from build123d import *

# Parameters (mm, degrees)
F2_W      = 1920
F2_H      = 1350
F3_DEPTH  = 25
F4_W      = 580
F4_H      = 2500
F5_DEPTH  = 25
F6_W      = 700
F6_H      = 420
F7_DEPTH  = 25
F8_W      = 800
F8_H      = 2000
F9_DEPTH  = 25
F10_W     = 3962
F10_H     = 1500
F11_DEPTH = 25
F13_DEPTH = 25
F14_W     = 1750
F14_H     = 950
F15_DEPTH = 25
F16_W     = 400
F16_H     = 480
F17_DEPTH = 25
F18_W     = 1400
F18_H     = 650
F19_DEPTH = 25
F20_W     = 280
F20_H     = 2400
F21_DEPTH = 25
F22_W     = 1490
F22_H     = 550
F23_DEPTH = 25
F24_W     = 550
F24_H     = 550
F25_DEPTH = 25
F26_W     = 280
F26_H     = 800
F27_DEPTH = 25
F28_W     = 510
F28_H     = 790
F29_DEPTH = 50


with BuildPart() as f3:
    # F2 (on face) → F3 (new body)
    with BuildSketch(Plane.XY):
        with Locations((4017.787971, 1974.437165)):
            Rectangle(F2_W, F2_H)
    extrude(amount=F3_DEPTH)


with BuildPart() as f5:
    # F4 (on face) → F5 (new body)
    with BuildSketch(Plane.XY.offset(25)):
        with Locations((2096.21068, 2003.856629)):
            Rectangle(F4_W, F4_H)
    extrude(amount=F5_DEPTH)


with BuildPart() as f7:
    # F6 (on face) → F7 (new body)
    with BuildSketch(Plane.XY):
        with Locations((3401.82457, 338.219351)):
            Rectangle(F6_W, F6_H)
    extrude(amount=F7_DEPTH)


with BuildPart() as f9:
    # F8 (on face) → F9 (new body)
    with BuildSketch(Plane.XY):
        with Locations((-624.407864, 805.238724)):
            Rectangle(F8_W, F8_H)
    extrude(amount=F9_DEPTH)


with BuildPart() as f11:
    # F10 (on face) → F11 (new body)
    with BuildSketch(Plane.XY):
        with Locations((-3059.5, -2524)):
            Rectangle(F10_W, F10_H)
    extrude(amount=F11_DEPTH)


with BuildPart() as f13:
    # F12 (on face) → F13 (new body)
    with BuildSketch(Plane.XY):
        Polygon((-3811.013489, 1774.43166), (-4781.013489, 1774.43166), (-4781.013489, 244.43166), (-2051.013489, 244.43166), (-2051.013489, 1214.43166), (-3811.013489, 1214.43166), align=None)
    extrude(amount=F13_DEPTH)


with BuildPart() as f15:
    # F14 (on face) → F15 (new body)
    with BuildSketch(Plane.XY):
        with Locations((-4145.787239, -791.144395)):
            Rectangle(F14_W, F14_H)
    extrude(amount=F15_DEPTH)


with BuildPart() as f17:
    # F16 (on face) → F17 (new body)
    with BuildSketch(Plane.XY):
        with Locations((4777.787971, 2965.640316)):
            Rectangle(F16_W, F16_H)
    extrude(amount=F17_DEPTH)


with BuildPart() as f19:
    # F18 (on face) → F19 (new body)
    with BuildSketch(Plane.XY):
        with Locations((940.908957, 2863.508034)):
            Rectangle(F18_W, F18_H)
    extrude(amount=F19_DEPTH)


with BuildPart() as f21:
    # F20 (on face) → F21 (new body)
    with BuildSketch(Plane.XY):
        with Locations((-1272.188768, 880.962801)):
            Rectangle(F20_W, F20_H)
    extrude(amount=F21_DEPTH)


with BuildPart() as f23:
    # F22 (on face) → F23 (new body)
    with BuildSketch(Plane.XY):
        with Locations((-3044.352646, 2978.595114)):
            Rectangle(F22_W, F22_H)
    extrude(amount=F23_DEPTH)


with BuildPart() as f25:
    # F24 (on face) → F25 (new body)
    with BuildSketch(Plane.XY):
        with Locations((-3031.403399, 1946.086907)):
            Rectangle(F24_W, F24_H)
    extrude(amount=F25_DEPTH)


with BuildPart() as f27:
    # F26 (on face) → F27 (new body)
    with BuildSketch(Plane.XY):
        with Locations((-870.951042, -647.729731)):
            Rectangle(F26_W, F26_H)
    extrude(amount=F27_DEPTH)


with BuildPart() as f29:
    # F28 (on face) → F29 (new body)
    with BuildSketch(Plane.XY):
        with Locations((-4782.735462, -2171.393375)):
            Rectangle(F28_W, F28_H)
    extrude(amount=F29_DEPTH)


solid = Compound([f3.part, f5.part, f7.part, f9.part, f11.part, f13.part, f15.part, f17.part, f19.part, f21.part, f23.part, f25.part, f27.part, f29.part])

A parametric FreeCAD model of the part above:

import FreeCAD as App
import Part
import Sketcher

V = App.Vector
Q = App.Units.Quantity

doc = App.newDocument("Part")
params = doc.addObject("Spreadsheet::Sheet", "Params")
for row, (alias, value) in enumerate([
    ("sketch1_width", "1920 mm"),
    ("sketch1_height", "1350 mm"),
    ("pad1_length", "25 mm"),
    ("sketch2_width", "580 mm"),
    ("sketch2_height", "2500 mm"),
    ("pad2_length", "25 mm"),
    ("sketch3_width", "700 mm"),
    ("sketch3_height", "420 mm"),
    ("pad3_length", "25 mm"),
    ("sketch4_width", "800 mm"),
    ("sketch4_height", "2000 mm"),
    ("pad4_length", "25 mm"),
    ("sketch5_width", "3962 mm"),
    ("sketch5_height", "1500 mm"),
    ("pad5_length", "25 mm"),
    ("sketch6_width", "970 mm"),
    ("sketch6_width2", "2730 mm"),
    ("sketch6_height", "1530 mm"),
    ("pad6_length", "25 mm"),
    ("sketch7_width", "1750 mm"),
    ("sketch7_height", "950 mm"),
    ("pad7_length", "25 mm"),
    ("sketch8_width", "400 mm"),
    ("sketch8_height", "480 mm"),
    ("pad8_length", "25 mm"),
    ("sketch9_width", "1400 mm"),
    ("sketch9_height", "650 mm"),
    ("pad9_length", "25 mm"),
    ("sketch10_width", "280 mm"),
    ("sketch10_height", "2400 mm"),
    ("pad10_length", "25 mm"),
    ("sketch11_width", "1490 mm"),
    ("sketch11_height", "550 mm"),
    ("pad11_length", "25 mm"),
    ("sketch12_width", "550 mm"),
    ("pad12_length", "25 mm"),
    ("sketch13_width", "280 mm"),
    ("sketch13_height", "800 mm"),
    ("pad13_length", "25 mm"),
    ("sketch14_width", "510 mm"),
    ("sketch14_height", "790 mm"),
    ("pad14_length", "50 mm"),
], start=1):
    params.set(f"A{row}", alias)
    params.set(f"B{row}", "=" + value)
    params.setAlias(f"B{row}", alias)

body = doc.addObject("PartDesign::Body", "Body")

# Sketch on XY plane
sketch1 = doc.addObject("Sketcher::SketchObject", "Sketch")
body.addObject(sketch1)
sketch1.AttachmentSupport = (doc.XY_Plane, [""])
sketch1.MapMode = "FlatFace"
sketch1.addGeometry([
    Part.LineSegment(V(3058, 2649, 0), V(3058, 1299, 0)),
    Part.LineSegment(V(3058, 1299, 0), V(4978, 1299, 0)),
    Part.LineSegment(V(4978, 1299, 0), V(4978, 2649, 0)),
    Part.LineSegment(V(4978, 2649, 0), V(3058, 2649, 0)),
], False)
sketch1.addConstraint([
    Sketcher.Constraint("Coincident", 0, 2, 1, 1),
    Sketcher.Constraint("Coincident", 1, 2, 2, 1),
    Sketcher.Constraint("Coincident", 2, 2, 3, 1),
    Sketcher.Constraint("Coincident", 3, 2, 0, 1),
    Sketcher.Constraint("Vertical", 0),
    Sketcher.Constraint("Horizontal", 1),
    Sketcher.Constraint("Vertical", 2),
    Sketcher.Constraint("Horizontal", 3),
    Sketcher.Constraint("DistanceX", 1, 1, 1, 2, Q("1920 mm")),
    Sketcher.Constraint("DistanceY", 0, 2, 0, 1, Q("1350 mm")),
    Sketcher.Constraint("DistanceX", -1, 1, 0, 2, Q("3057.787971 mm")),
    Sketcher.Constraint("DistanceY", -1, 1, 0, 2, Q("1299.437165 mm")),
])
sketch1.setExpression("Constraints[8]", "Params.sketch1_width")
sketch1.setExpression("Constraints[9]", "Params.sketch1_height")
pad1 = doc.addObject("PartDesign::Pad", "Pad")
body.addObject(pad1)
pad1.Profile = sketch1
pad1.setExpression("Length", "Params.pad1_length")
body2 = doc.addObject("PartDesign::Body", "Body001")

# Sketch on XY plane
sketch2 = doc.addObject("Sketcher::SketchObject", "Sketch001")
body2.addObject(sketch2)
sketch2.AttachmentSupport = (doc.getObject("XY_Plane001"), [""])
sketch2.MapMode = "FlatFace"
sketch2.AttachmentOffset = App.Placement(V(0, 0, 25), App.Rotation())
sketch2.addGeometry([
    Part.LineSegment(V(1806, 3254, 0), V(1806, 754, 0)),
    Part.LineSegment(V(1806, 754, 0), V(2386, 754, 0)),
    Part.LineSegment(V(2386, 754, 0), V(2386, 3254, 0)),
    Part.LineSegment(V(2386, 3254, 0), V(1806, 3254, 0)),
], False)
sketch2.addConstraint([
    Sketcher.Constraint("Coincident", 0, 2, 1, 1),
    Sketcher.Constraint("Coincident", 1, 2, 2, 1),
    Sketcher.Constraint("Coincident", 2, 2, 3, 1),
    Sketcher.Constraint("Coincident", 3, 2, 0, 1),
    Sketcher.Constraint("Vertical", 0),
    Sketcher.Constraint("Horizontal", 1),
    Sketcher.Constraint("Vertical", 2),
    Sketcher.Constraint("Horizontal", 3),
    Sketcher.Constraint("DistanceX", 1, 1, 1, 2, Q("580 mm")),
    Sketcher.Constraint("DistanceY", 0, 2, 0, 1, Q("2500 mm")),
    Sketcher.Constraint("DistanceX", -1, 1, 0, 2, Q("1806.21068 mm")),
    Sketcher.Constraint("DistanceY", -1, 1, 0, 2, Q("753.856629 mm")),
])
sketch2.setExpression("Constraints[8]", "Params.sketch2_width")
sketch2.setExpression("Constraints[9]", "Params.sketch2_height")
pad2 = doc.addObject("PartDesign::Pad", "Pad001")
body2.addObject(pad2)
pad2.Profile = sketch2
pad2.setExpression("Length", "Params.pad2_length")
body3 = doc.addObject("PartDesign::Body", "Body002")

# Sketch on XY plane
sketch3 = doc.addObject("Sketcher::SketchObject", "Sketch002")
body3.addObject(sketch3)
sketch3.AttachmentSupport = (doc.getObject("XY_Plane002"), [""])
sketch3.MapMode = "FlatFace"
sketch3.addGeometry([
    Part.LineSegment(V(3052, 548, 0), V(3052, 128, 0)),
    Part.LineSegment(V(3052, 128, 0), V(3752, 128, 0)),
    Part.LineSegment(V(3752, 128, 0), V(3752, 548, 0)),
    Part.LineSegment(V(3752, 548, 0), V(3052, 548, 0)),
], False)
sketch3.addConstraint([
    Sketcher.Constraint("Coincident", 0, 2, 1, 1),
    Sketcher.Constraint("Coincident", 1, 2, 2, 1),
    Sketcher.Constraint("Coincident", 2, 2, 3, 1),
    Sketcher.Constraint("Coincident", 3, 2, 0, 1),
    Sketcher.Constraint("Vertical", 0),
    Sketcher.Constraint("Horizontal", 1),
    Sketcher.Constraint("Vertical", 2),
    Sketcher.Constraint("Horizontal", 3),
    Sketcher.Constraint("DistanceX", 1, 1, 1, 2, Q("700 mm")),
    Sketcher.Constraint("DistanceY", 0, 2, 0, 1, Q("420 mm")),
    Sketcher.Constraint("DistanceX", -1, 1, 0, 2, Q("3051.82457 mm")),
    Sketcher.Constraint("DistanceY", -1, 1, 0, 2, Q("128.219351 mm")),
])
sketch3.setExpression("Constraints[8]", "Params.sketch3_width")
sketch3.setExpression("Constraints[9]", "Params.sketch3_height")
pad3 = doc.addObject("PartDesign::Pad", "Pad002")
body3.addObject(pad3)
pad3.Profile = sketch3
pad3.setExpression("Length", "Params.pad3_length")
body4 = doc.addObject("PartDesign::Body", "Body003")

# Sketch on XY plane
sketch4 = doc.addObject("Sketcher::SketchObject", "Sketch003")
body4.addObject(sketch4)
sketch4.AttachmentSupport = (doc.getObject("XY_Plane003"), [""])
sketch4.MapMode = "FlatFace"
sketch4.addGeometry([
    Part.LineSegment(V(-1024, 1805, 0), V(-1024, -195, 0)),
    Part.LineSegment(V(-1024, -195, 0), V(-224, -195, 0)),
    Part.LineSegment(V(-224, -195, 0), V(-224, 1805, 0)),
    Part.LineSegment(V(-224, 1805, 0), V(-1024, 1805, 0)),
], False)
sketch4.addConstraint([
    Sketcher.Constraint("Coincident", 0, 2, 1, 1),
    Sketcher.Constraint("Coincident", 1, 2, 2, 1),
    Sketcher.Constraint("Coincident", 2, 2, 3, 1),
    Sketcher.Constraint("Coincident", 3, 2, 0, 1),
    Sketcher.Constraint("Vertical", 0),
    Sketcher.Constraint("Horizontal", 1),
    Sketcher.Constraint("Vertical", 2),
    Sketcher.Constraint("Horizontal", 3),
    Sketcher.Constraint("DistanceX", 1, 1, 1, 2, Q("800 mm")),
    Sketcher.Constraint("DistanceY", 0, 2, 0, 1, Q("2000 mm")),
    Sketcher.Constraint("DistanceX", 0, 2, -1, 1, Q("1024.407864 mm")),
    Sketcher.Constraint("DistanceY", 0, 2, -1, 1, Q("194.761276 mm")),
])
sketch4.setExpression("Constraints[8]", "Params.sketch4_width")
sketch4.setExpression("Constraints[9]", "Params.sketch4_height")
pad4 = doc.addObject("PartDesign::Pad", "Pad003")
body4.addObject(pad4)
pad4.Profile = sketch4
pad4.setExpression("Length", "Params.pad4_length")
body5 = doc.addObject("PartDesign::Body", "Body004")

# Sketch on XY plane
sketch5 = doc.addObject("Sketcher::SketchObject", "Sketch004")
body5.addObject(sketch5)
sketch5.AttachmentSupport = (doc.getObject("XY_Plane004"), [""])
sketch5.MapMode = "FlatFace"
sketch5.addGeometry([
    Part.LineSegment(V(-5040, -1774, 0), V(-5040, -3274, 0)),
    Part.LineSegment(V(-5040, -3274, 0), V(-1078, -3274, 0)),
    Part.LineSegment(V(-1078, -3274, 0), V(-1078, -1774, 0)),
    Part.LineSegment(V(-1078, -1774, 0), V(-5040, -1774, 0)),
], False)
sketch5.addConstraint([
    Sketcher.Constraint("Coincident", 0, 2, 1, 1),
    Sketcher.Constraint("Coincident", 1, 2, 2, 1),
    Sketcher.Constraint("Coincident", 2, 2, 3, 1),
    Sketcher.Constraint("Coincident", 3, 2, 0, 1),
    Sketcher.Constraint("Vertical", 0),
    Sketcher.Constraint("Horizontal", 1),
    Sketcher.Constraint("Vertical", 2),
    Sketcher.Constraint("Horizontal", 3),
    Sketcher.Constraint("DistanceX", 1, 1, 1, 2, Q("3962 mm")),
    Sketcher.Constraint("DistanceY", 0, 2, 0, 1, Q("1500 mm")),
    Sketcher.Constraint("DistanceY", 0, 2, -1, 1, Q("3274 mm")),
    Sketcher.Constraint("DistanceX", 0, 2, -1, 1, Q("5040.5 mm")),
])
sketch5.setExpression("Constraints[8]", "Params.sketch5_width")
sketch5.setExpression("Constraints[9]", "Params.sketch5_height")
pad5 = doc.addObject("PartDesign::Pad", "Pad004")
body5.addObject(pad5)
pad5.Profile = sketch5
pad5.setExpression("Length", "Params.pad5_length")
body6 = doc.addObject("PartDesign::Body", "Body005")

# Sketch on XY plane
sketch6 = doc.addObject("Sketcher::SketchObject", "Sketch005")
body6.addObject(sketch6)
sketch6.AttachmentSupport = (doc.getObject("XY_Plane005"), [""])
sketch6.MapMode = "FlatFace"
sketch6.addGeometry([
    Part.LineSegment(V(-3811, 1774, 0), V(-4781, 1774, 0)),  # 0
    Part.LineSegment(V(-4781, 1774, 0), V(-4781, 244, 0)),  # 1
    Part.LineSegment(V(-4781, 244, 0), V(-2051, 244, 0)),  # 2
    Part.LineSegment(V(-2051, 244, 0), V(-2051, 1214, 0)),  # 3
    Part.LineSegment(V(-2051, 1214, 0), V(-3811, 1214, 0)),  # 4
    Part.LineSegment(V(-3811, 1214, 0), V(-3811, 1774, 0)),  # 5
], False)
sketch6.addConstraint([
    Sketcher.Constraint("Coincident", 0, 2, 1, 1),
    Sketcher.Constraint("Coincident", 1, 2, 2, 1),
    Sketcher.Constraint("Coincident", 2, 2, 3, 1),
    Sketcher.Constraint("Coincident", 3, 2, 4, 1),
    Sketcher.Constraint("Coincident", 4, 2, 5, 1),
    Sketcher.Constraint("Coincident", 5, 2, 0, 1),
    Sketcher.Constraint("Horizontal", 0),
    Sketcher.Constraint("Vertical", 1),
    Sketcher.Constraint("Horizontal", 2),
    Sketcher.Constraint("Vertical", 3),
    Sketcher.Constraint("Horizontal", 4),
    Sketcher.Constraint("Vertical", 5),
    Sketcher.Constraint("Equal", 0, 3),
    Sketcher.Constraint("DistanceX", 0, 2, 0, 1, Q("970 mm")),
    Sketcher.Constraint("DistanceX", 2, 1, 2, 2, Q("2730 mm")),
    Sketcher.Constraint("DistanceY", 1, 2, 1, 1, Q("1530 mm")),
    Sketcher.Constraint("DistanceX", 0, 2, -1, 1, Q("4781.013489 mm")),
    Sketcher.Constraint("DistanceY", -1, 1, 0, 2, Q("1774.43166 mm")),
])
sketch6.setExpression("Constraints[13]", "Params.sketch6_width")
sketch6.setExpression("Constraints[14]", "Params.sketch6_width2")
sketch6.setExpression("Constraints[15]", "Params.sketch6_height")
pad6 = doc.addObject("PartDesign::Pad", "Pad005")
body6.addObject(pad6)
pad6.Profile = sketch6
pad6.setExpression("Length", "Params.pad6_length")
body7 = doc.addObject("PartDesign::Body", "Body006")

# Sketch on XY plane
sketch7 = doc.addObject("Sketcher::SketchObject", "Sketch006")
body7.addObject(sketch7)
sketch7.AttachmentSupport = (doc.getObject("XY_Plane006"), [""])
sketch7.MapMode = "FlatFace"
sketch7.addGeometry([
    Part.LineSegment(V(-5021, -316, 0), V(-5021, -1266, 0)),
    Part.LineSegment(V(-5021, -1266, 0), V(-3271, -1266, 0)),
    Part.LineSegment(V(-3271, -1266, 0), V(-3271, -316, 0)),
    Part.LineSegment(V(-3271, -316, 0), V(-5021, -316, 0)),
], False)
sketch7.addConstraint([
    Sketcher.Constraint("Coincident", 0, 2, 1, 1),
    Sketcher.Constraint("Coincident", 1, 2, 2, 1),
    Sketcher.Constraint("Coincident", 2, 2, 3, 1),
    Sketcher.Constraint("Coincident", 3, 2, 0, 1),
    Sketcher.Constraint("Vertical", 0),
    Sketcher.Constraint("Horizontal", 1),
    Sketcher.Constraint("Vertical", 2),
    Sketcher.Constraint("Horizontal", 3),
    Sketcher.Constraint("DistanceX", 1, 1, 1, 2, Q("1750 mm")),
    Sketcher.Constraint("DistanceY", 0, 2, 0, 1, Q("950 mm")),
    Sketcher.Constraint("DistanceX", 0, 2, -1, 1, Q("5020.787239 mm")),
    Sketcher.Constraint("DistanceY", 0, 2, -1, 1, Q("1266.144395 mm")),
])
sketch7.setExpression("Constraints[8]", "Params.sketch7_width")
sketch7.setExpression("Constraints[9]", "Params.sketch7_height")
pad7 = doc.addObject("PartDesign::Pad", "Pad006")
body7.addObject(pad7)
pad7.Profile = sketch7
pad7.setExpression("Length", "Params.pad7_length")
body8 = doc.addObject("PartDesign::Body", "Body007")

# Sketch on XY plane
sketch8 = doc.addObject("Sketcher::SketchObject", "Sketch007")
body8.addObject(sketch8)
sketch8.AttachmentSupport = (doc.getObject("XY_Plane007"), [""])
sketch8.MapMode = "FlatFace"
sketch8.addGeometry([
    Part.LineSegment(V(4578, 3206, 0), V(4578, 2726, 0)),
    Part.LineSegment(V(4578, 2726, 0), V(4978, 2726, 0)),
    Part.LineSegment(V(4978, 2726, 0), V(4978, 3206, 0)),
    Part.LineSegment(V(4978, 3206, 0), V(4578, 3206, 0)),
], False)
sketch8.addConstraint([
    Sketcher.Constraint("Coincident", 0, 2, 1, 1),
    Sketcher.Constraint("Coincident", 1, 2, 2, 1),
    Sketcher.Constraint("Coincident", 2, 2, 3, 1),
    Sketcher.Constraint("Coincident", 3, 2, 0, 1),
    Sketcher.Constraint("Vertical", 0),
    Sketcher.Constraint("Horizontal", 1),
    Sketcher.Constraint("Vertical", 2),
    Sketcher.Constraint("Horizontal", 3),
    Sketcher.Constraint("DistanceX", 1, 1, 1, 2, Q("400 mm")),
    Sketcher.Constraint("DistanceY", 0, 2, 0, 1, Q("480 mm")),
    Sketcher.Constraint("DistanceX", -1, 1, 0, 2, Q("4577.787971 mm")),
    Sketcher.Constraint("DistanceY", -1, 1, 0, 2, Q("2725.640316 mm")),
])
sketch8.setExpression("Constraints[8]", "Params.sketch8_width")
sketch8.setExpression("Constraints[9]", "Params.sketch8_height")
pad8 = doc.addObject("PartDesign::Pad", "Pad007")
body8.addObject(pad8)
pad8.Profile = sketch8
pad8.setExpression("Length", "Params.pad8_length")
body9 = doc.addObject("PartDesign::Body", "Body008")

# Sketch on XY plane
sketch9 = doc.addObject("Sketcher::SketchObject", "Sketch008")
body9.addObject(sketch9)
sketch9.AttachmentSupport = (doc.getObject("XY_Plane008"), [""])
sketch9.MapMode = "FlatFace"
sketch9.addGeometry([
    Part.LineSegment(V(241, 3189, 0), V(241, 2539, 0)),
    Part.LineSegment(V(241, 2539, 0), V(1641, 2539, 0)),
    Part.LineSegment(V(1641, 2539, 0), V(1641, 3189, 0)),
    Part.LineSegment(V(1641, 3189, 0), V(241, 3189, 0)),
], False)
sketch9.addConstraint([
    Sketcher.Constraint("Coincident", 0, 2, 1, 1),
    Sketcher.Constraint("Coincident", 1, 2, 2, 1),
    Sketcher.Constraint("Coincident", 2, 2, 3, 1),
    Sketcher.Constraint("Coincident", 3, 2, 0, 1),
    Sketcher.Constraint("Vertical", 0),
    Sketcher.Constraint("Horizontal", 1),
    Sketcher.Constraint("Vertical", 2),
    Sketcher.Constraint("Horizontal", 3),
    Sketcher.Constraint("DistanceX", 1, 1, 1, 2, Q("1400 mm")),
    Sketcher.Constraint("DistanceY", 0, 2, 0, 1, Q("650 mm")),
    Sketcher.Constraint("DistanceX", -1, 1, 0, 2, Q("240.908957 mm")),
    Sketcher.Constraint("DistanceY", -1, 1, 0, 2, Q("2538.508034 mm")),
])
sketch9.setExpression("Constraints[8]", "Params.sketch9_width")
sketch9.setExpression("Constraints[9]", "Params.sketch9_height")
pad9 = doc.addObject("PartDesign::Pad", "Pad008")
body9.addObject(pad9)
pad9.Profile = sketch9
pad9.setExpression("Length", "Params.pad9_length")
body10 = doc.addObject("PartDesign::Body", "Body009")

# Sketch on XY plane
sketch10 = doc.addObject("Sketcher::SketchObject", "Sketch009")
body10.addObject(sketch10)
sketch10.AttachmentSupport = (doc.getObject("XY_Plane009"), [""])
sketch10.MapMode = "FlatFace"
sketch10.addGeometry([
    Part.LineSegment(V(-1412, 2081, 0), V(-1412, -319, 0)),
    Part.LineSegment(V(-1412, -319, 0), V(-1132, -319, 0)),
    Part.LineSegment(V(-1132, -319, 0), V(-1132, 2081, 0)),
    Part.LineSegment(V(-1132, 2081, 0), V(-1412, 2081, 0)),
], False)
sketch10.addConstraint([
    Sketcher.Constraint("Coincident", 0, 2, 1, 1),
    Sketcher.Constraint("Coincident", 1, 2, 2, 1),
    Sketcher.Constraint("Coincident", 2, 2, 3, 1),
    Sketcher.Constraint("Coincident", 3, 2, 0, 1),
    Sketcher.Constraint("Vertical", 0),
    Sketcher.Constraint("Horizontal", 1),
    Sketcher.Constraint("Vertical", 2),
    Sketcher.Constraint("Horizontal", 3),
    Sketcher.Constraint("DistanceX", 1, 1, 1, 2, Q("280 mm")),
    Sketcher.Constraint("DistanceY", 0, 2, 0, 1, Q("2400 mm")),
    Sketcher.Constraint("DistanceY", 0, 2, -1, 1, Q("319.037199 mm")),
    Sketcher.Constraint("DistanceX", 0, 2, -1, 1, Q("1412.188768 mm")),
])
sketch10.setExpression("Constraints[8]", "Params.sketch10_width")
sketch10.setExpression("Constraints[9]", "Params.sketch10_height")
pad10 = doc.addObject("PartDesign::Pad", "Pad009")
body10.addObject(pad10)
pad10.Profile = sketch10
pad10.setExpression("Length", "Params.pad10_length")
body11 = doc.addObject("PartDesign::Body", "Body010")

# Sketch on XY plane
sketch11 = doc.addObject("Sketcher::SketchObject", "Sketch010")
body11.addObject(sketch11)
sketch11.AttachmentSupport = (doc.getObject("XY_Plane010"), [""])
sketch11.MapMode = "FlatFace"
sketch11.addGeometry([
    Part.LineSegment(V(-3789, 3254, 0), V(-3789, 2704, 0)),
    Part.LineSegment(V(-3789, 2704, 0), V(-2299, 2704, 0)),
    Part.LineSegment(V(-2299, 2704, 0), V(-2299, 3254, 0)),
    Part.LineSegment(V(-2299, 3254, 0), V(-3789, 3254, 0)),
], False)
sketch11.addConstraint([
    Sketcher.Constraint("Coincident", 0, 2, 1, 1),
    Sketcher.Constraint("Coincident", 1, 2, 2, 1),
    Sketcher.Constraint("Coincident", 2, 2, 3, 1),
    Sketcher.Constraint("Coincident", 3, 2, 0, 1),
    Sketcher.Constraint("Vertical", 0),
    Sketcher.Constraint("Horizontal", 1),
    Sketcher.Constraint("Vertical", 2),
    Sketcher.Constraint("Horizontal", 3),
    Sketcher.Constraint("DistanceX", 1, 1, 1, 2, Q("1490 mm")),
    Sketcher.Constraint("DistanceY", 0, 2, 0, 1, Q("550 mm")),
    Sketcher.Constraint("DistanceX", 0, 2, -1, 1, Q("3789.352646 mm")),
    Sketcher.Constraint("DistanceY", -1, 1, 0, 2, Q("2703.595114 mm")),
])
sketch11.setExpression("Constraints[8]", "Params.sketch11_width")
sketch11.setExpression("Constraints[9]", "Params.sketch11_height")
pad11 = doc.addObject("PartDesign::Pad", "Pad010")
body11.addObject(pad11)
pad11.Profile = sketch11
pad11.setExpression("Length", "Params.pad11_length")
body12 = doc.addObject("PartDesign::Body", "Body011")

# Sketch on XY plane
sketch12 = doc.addObject("Sketcher::SketchObject", "Sketch011")
body12.addObject(sketch12)
sketch12.AttachmentSupport = (doc.getObject("XY_Plane011"), [""])
sketch12.MapMode = "FlatFace"
sketch12.addGeometry([
    Part.LineSegment(V(-3306, 2221, 0), V(-3306, 1671, 0)),
    Part.LineSegment(V(-3306, 1671, 0), V(-2756, 1671, 0)),
    Part.LineSegment(V(-2756, 1671, 0), V(-2756, 2221, 0)),
    Part.LineSegment(V(-2756, 2221, 0), V(-3306, 2221, 0)),
], False)
sketch12.addConstraint([
    Sketcher.Constraint("Coincident", 0, 2, 1, 1),
    Sketcher.Constraint("Coincident", 1, 2, 2, 1),
    Sketcher.Constraint("Coincident", 2, 2, 3, 1),
    Sketcher.Constraint("Coincident", 3, 2, 0, 1),
    Sketcher.Constraint("Vertical", 0),
    Sketcher.Constraint("Horizontal", 1),
    Sketcher.Constraint("Vertical", 2),
    Sketcher.Constraint("Horizontal", 3),
    Sketcher.Constraint("Equal", 3, 0),
    Sketcher.Constraint("DistanceX", 1, 1, 1, 2, Q("550 mm")),
    Sketcher.Constraint("DistanceX", 0, 2, -1, 1, Q("3306.403399 mm")),
    Sketcher.Constraint("DistanceY", -1, 1, 0, 2, Q("1671.086907 mm")),
])
sketch12.setExpression("Constraints[9]", "Params.sketch12_width")
pad12 = doc.addObject("PartDesign::Pad", "Pad011")
body12.addObject(pad12)
pad12.Profile = sketch12
pad12.setExpression("Length", "Params.pad12_length")
body13 = doc.addObject("PartDesign::Body", "Body012")

# Sketch on XY plane
sketch13 = doc.addObject("Sketcher::SketchObject", "Sketch012")
body13.addObject(sketch13)
sketch13.AttachmentSupport = (doc.getObject("XY_Plane012"), [""])
sketch13.MapMode = "FlatFace"
sketch13.addGeometry([
    Part.LineSegment(V(-1011, -248, 0), V(-1011, -1048, 0)),
    Part.LineSegment(V(-1011, -1048, 0), V(-731, -1048, 0)),
    Part.LineSegment(V(-731, -1048, 0), V(-731, -248, 0)),
    Part.LineSegment(V(-731, -248, 0), V(-1011, -248, 0)),
], False)
sketch13.addConstraint([
    Sketcher.Constraint("Coincident", 0, 2, 1, 1),
    Sketcher.Constraint("Coincident", 1, 2, 2, 1),
    Sketcher.Constraint("Coincident", 2, 2, 3, 1),
    Sketcher.Constraint("Coincident", 3, 2, 0, 1),
    Sketcher.Constraint("Vertical", 0),
    Sketcher.Constraint("Horizontal", 1),
    Sketcher.Constraint("Vertical", 2),
    Sketcher.Constraint("Horizontal", 3),
    Sketcher.Constraint("DistanceX", 1, 1, 1, 2, Q("280 mm")),
    Sketcher.Constraint("DistanceY", 0, 2, 0, 1, Q("800 mm")),
    Sketcher.Constraint("DistanceX", 0, 2, -1, 1, Q("1010.951042 mm")),
    Sketcher.Constraint("DistanceY", 0, 2, -1, 1, Q("1047.729731 mm")),
])
sketch13.setExpression("Constraints[8]", "Params.sketch13_width")
sketch13.setExpression("Constraints[9]", "Params.sketch13_height")
pad13 = doc.addObject("PartDesign::Pad", "Pad012")
body13.addObject(pad13)
pad13.Profile = sketch13
pad13.setExpression("Length", "Params.pad13_length")
body14 = doc.addObject("PartDesign::Body", "Body013")

# Sketch on XY plane
sketch14 = doc.addObject("Sketcher::SketchObject", "Sketch013")
body14.addObject(sketch14)
sketch14.AttachmentSupport = (doc.getObject("XY_Plane013"), [""])
sketch14.MapMode = "FlatFace"
sketch14.addGeometry([
    Part.LineSegment(V(-5038, -1776, 0), V(-5038, -2566, 0)),
    Part.LineSegment(V(-5038, -2566, 0), V(-4528, -2566, 0)),
    Part.LineSegment(V(-4528, -2566, 0), V(-4528, -1776, 0)),
    Part.LineSegment(V(-4528, -1776, 0), V(-5038, -1776, 0)),
], False)
sketch14.addConstraint([
    Sketcher.Constraint("Coincident", 0, 2, 1, 1),
    Sketcher.Constraint("Coincident", 1, 2, 2, 1),
    Sketcher.Constraint("Coincident", 2, 2, 3, 1),
    Sketcher.Constraint("Coincident", 3, 2, 0, 1),
    Sketcher.Constraint("Vertical", 0),
    Sketcher.Constraint("Horizontal", 1),
    Sketcher.Constraint("Vertical", 2),
    Sketcher.Constraint("Horizontal", 3),
    Sketcher.Constraint("DistanceX", 1, 1, 1, 2, Q("510 mm")),
    Sketcher.Constraint("DistanceY", 0, 2, 0, 1, Q("790 mm")),
    Sketcher.Constraint("DistanceX", 0, 2, -1, 1, Q("5037.735462 mm")),
    Sketcher.Constraint("DistanceY", 0, 2, -1, 1, Q("2566.393375 mm")),
])
sketch14.setExpression("Constraints[8]", "Params.sketch14_width")
sketch14.setExpression("Constraints[9]", "Params.sketch14_height")
pad14 = doc.addObject("PartDesign::Pad", "Pad013")
body14.addObject(pad14)
pad14.Profile = sketch14
pad14.setExpression("Length", "Params.pad14_length")

doc.recompute()
